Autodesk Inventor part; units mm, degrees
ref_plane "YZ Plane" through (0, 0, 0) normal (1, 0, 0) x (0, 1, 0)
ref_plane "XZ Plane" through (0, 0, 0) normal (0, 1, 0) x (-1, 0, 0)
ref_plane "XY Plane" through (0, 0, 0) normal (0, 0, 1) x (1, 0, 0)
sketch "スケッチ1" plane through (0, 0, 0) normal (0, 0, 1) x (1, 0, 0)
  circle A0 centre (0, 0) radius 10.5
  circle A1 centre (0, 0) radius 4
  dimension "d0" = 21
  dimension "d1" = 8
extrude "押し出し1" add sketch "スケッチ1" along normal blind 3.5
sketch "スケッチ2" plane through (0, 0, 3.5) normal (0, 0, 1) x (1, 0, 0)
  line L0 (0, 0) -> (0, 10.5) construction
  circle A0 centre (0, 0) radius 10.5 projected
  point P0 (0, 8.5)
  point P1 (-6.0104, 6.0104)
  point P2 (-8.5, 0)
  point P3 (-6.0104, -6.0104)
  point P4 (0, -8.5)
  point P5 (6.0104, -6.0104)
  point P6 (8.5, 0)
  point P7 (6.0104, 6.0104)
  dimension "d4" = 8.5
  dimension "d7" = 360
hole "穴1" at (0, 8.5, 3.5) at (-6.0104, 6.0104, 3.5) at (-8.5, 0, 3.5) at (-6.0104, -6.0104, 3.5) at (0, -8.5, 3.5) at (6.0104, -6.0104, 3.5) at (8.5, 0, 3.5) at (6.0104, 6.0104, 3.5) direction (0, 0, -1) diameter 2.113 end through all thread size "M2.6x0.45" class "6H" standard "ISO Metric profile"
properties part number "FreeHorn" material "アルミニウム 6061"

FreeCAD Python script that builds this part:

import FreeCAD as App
import Part
import Sketcher
from FreeCAD import Vector

doc = App.newDocument("Part")
body = doc.addObject("PartDesign::Body", "Body")

# Sketch on XY plane
sketch1 = body.newObject("Sketcher::SketchObject", "Sketch")
sketch1.AttachmentSupport = (doc.getObject("XY_Plane"), [""])
sketch1.MapMode = "FlatFace"
sketch1.addGeometry([
    Part.Circle(Vector(0, 0, 0), Vector(0, 0, 1), 10.5),
    Part.Circle(Vector(0, 0, 0), Vector(0, 0, 1), 4),
], False)
sketch1.addConstraint([
    Sketcher.Constraint("Coincident", 0, 3, -1, 1),
    Sketcher.Constraint("Coincident", 1, 3, -1, 1),
    Sketcher.Constraint("Diameter", 0, 21.0),
    Sketcher.Constraint("Diameter", 1, 8.0),
])
pad1 = body.newObject("PartDesign::Pad", "Pad")
pad1.Profile = sketch1
pad1.Length = 3.5

# Sketch on XY plane
sketch2 = body.newObject("Sketcher::SketchObject", "Sketch001")
sketch2.AttachmentSupport = (doc.getObject("XY_Plane"), [""])
sketch2.MapMode = "FlatFace"
sketch2.AttachmentOffset = App.Placement(Vector(0, 0, 3.5), App.Rotation())
sketch2.addGeometry([
    Part.Circle(Vector(0, 8.5, 0), Vector(0, 0, 1), 1.0565),  # 0
    Part.Circle(Vector(-6.0104, 6.0104, 0), Vector(0, 0, 1), 1.0565),  # 1
    Part.Circle(Vector(-8.5, 0, 0), Vector(0, 0, 1), 1.0565),  # 2
    Part.Circle(Vector(-6.0104, -6.0104, 0), Vector(0, 0, 1), 1.0565),  # 3
    Part.Circle(Vector(0, -8.5, 0), Vector(0, 0, 1), 1.0565),  # 4
    Part.Circle(Vector(6.0104, -6.0104, 0), Vector(0, 0, 1), 1.0565),  # 5
    Part.Circle(Vector(8.5, 0, 0), Vector(0, 0, 1), 1.0565),  # 6
    Part.Circle(Vector(6.0104, 6.0104, 0), Vector(0, 0, 1), 1.0565),  # 7
], False)
sketch2.addConstraint([
    Sketcher.Constraint("Equal", 0, 1),
    Sketcher.Constraint("Equal", 1, 2),
    Sketcher.Constraint("Equal", 2, 3),
    Sketcher.Constraint("Equal", 3, 4),
    Sketcher.Constraint("Equal", 4, 5),
    Sketcher.Constraint("Equal", 5, 6),
    Sketcher.Constraint("Equal", 6, 7),
    Sketcher.Constraint("Symmetric", 0, 3, 4, 3, -1, 1),
    Sketcher.Constraint("Symmetric", 1, 3, 5, 3, -1, 1),
    Sketcher.Constraint("Symmetric", 2, 3, 6, 3, -1, 1),
    Sketcher.Constraint("Symmetric", 3, 3, 7, 3, -1, 1),
    Sketcher.Constraint("Symmetric", 3, 3, 5, 3, -2),
    Sketcher.Constraint("PointOnObject", 0, 3, -2),
    Sketcher.Constraint("PointOnObject", 2, 3, -1),
    Sketcher.Constraint("Diameter", 0, 2.113),
    Sketcher.Constraint("DistanceY", 4, 3, 0, 3, 17.0),
    Sketcher.Constraint("DistanceX", 2, 3, -1, 1, 8.5),
    Sketcher.Constraint("DistanceX", 1, 3, -1, 1, 6.0104),
    Sketcher.Constraint("DistanceY", -1, 1, 1, 3, 6.0104),
])
doc.recompute()
hole = body.newObject("PartDesign::Hole", "Hole")
hole.Profile = sketch2
hole.ThreadType = "None"
hole.Diameter = 2.113
hole.DepthType = "ThroughAll"

doc.recompute()
